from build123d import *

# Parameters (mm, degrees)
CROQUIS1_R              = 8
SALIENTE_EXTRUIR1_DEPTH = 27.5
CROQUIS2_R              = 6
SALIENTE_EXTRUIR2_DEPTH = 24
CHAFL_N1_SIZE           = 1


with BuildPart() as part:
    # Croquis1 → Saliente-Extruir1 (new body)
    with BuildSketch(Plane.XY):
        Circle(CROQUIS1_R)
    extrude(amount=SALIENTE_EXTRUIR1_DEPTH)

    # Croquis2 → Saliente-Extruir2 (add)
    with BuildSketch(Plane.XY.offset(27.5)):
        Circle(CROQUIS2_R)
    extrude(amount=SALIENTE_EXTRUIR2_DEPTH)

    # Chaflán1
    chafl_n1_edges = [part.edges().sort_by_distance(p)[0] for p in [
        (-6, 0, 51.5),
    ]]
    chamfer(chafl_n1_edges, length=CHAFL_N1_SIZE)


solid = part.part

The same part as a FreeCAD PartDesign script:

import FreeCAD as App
import Part
import Sketcher


def edges_at(feature, points):
    """Names of the edges that pass closest to the given points."""
    edges = feature.Shape.Edges
    near = lambda p: min(range(len(edges)), key=lambda i: edges[i].distToShape(Part.Vertex(*p))[0])
    return sorted({f"Edge{near(p) + 1}" for p in points})

doc = App.newDocument("Part")
body = doc.addObject("PartDesign::Body", "Body")

sketch1 = body.newObject("Sketcher::SketchObject", "Sketch")
sketch1.AttachmentSupport = (doc.getObject("XY_Plane"), [""])
sketch1.MapMode = "FlatFace"
sketch1.addGeometry(Part.Circle(App.Vector(0, 0, 0), App.Vector(0, 0, 1), 8), False)
sketch1.addConstraint(Sketcher.Constraint("Coincident", 0, 3, -1, 1))
sketch1.addConstraint(Sketcher.Constraint("Diameter", 0, 16.0))
pad1 = body.newObject("PartDesign::Pad", "Pad")
pad1.Profile = sketch1
pad1.Length = 27.5

sketch2 = body.newObject("Sketcher::SketchObject", "Sketch001")
sketch2.AttachmentSupport = (doc.getObject("XY_Plane"), [""])
sketch2.MapMode = "FlatFace"
sketch2.AttachmentOffset = App.Placement(App.Vector(0, 0, 27.5), App.Rotation())
sketch2.addGeometry(Part.Circle(App.Vector(0, 0, 0), App.Vector(0, 0, 1), 6), False)
sketch2.addConstraint(Sketcher.Constraint("Coincident", 0, 3, -1, 1))
sketch2.addConstraint(Sketcher.Constraint("Diameter", 0, 12.0))
pad2 = body.newObject("PartDesign::Pad", "Pad001")
pad2.Profile = sketch2
pad2.Length = 24
doc.recompute()

chamfer = body.newObject("PartDesign::Chamfer", "Chamfer")
chamfer.Base = (pad2, edges_at(pad2, [(-6, 0, 51.5)]))
chamfer.Size = 1

doc.recompute()
